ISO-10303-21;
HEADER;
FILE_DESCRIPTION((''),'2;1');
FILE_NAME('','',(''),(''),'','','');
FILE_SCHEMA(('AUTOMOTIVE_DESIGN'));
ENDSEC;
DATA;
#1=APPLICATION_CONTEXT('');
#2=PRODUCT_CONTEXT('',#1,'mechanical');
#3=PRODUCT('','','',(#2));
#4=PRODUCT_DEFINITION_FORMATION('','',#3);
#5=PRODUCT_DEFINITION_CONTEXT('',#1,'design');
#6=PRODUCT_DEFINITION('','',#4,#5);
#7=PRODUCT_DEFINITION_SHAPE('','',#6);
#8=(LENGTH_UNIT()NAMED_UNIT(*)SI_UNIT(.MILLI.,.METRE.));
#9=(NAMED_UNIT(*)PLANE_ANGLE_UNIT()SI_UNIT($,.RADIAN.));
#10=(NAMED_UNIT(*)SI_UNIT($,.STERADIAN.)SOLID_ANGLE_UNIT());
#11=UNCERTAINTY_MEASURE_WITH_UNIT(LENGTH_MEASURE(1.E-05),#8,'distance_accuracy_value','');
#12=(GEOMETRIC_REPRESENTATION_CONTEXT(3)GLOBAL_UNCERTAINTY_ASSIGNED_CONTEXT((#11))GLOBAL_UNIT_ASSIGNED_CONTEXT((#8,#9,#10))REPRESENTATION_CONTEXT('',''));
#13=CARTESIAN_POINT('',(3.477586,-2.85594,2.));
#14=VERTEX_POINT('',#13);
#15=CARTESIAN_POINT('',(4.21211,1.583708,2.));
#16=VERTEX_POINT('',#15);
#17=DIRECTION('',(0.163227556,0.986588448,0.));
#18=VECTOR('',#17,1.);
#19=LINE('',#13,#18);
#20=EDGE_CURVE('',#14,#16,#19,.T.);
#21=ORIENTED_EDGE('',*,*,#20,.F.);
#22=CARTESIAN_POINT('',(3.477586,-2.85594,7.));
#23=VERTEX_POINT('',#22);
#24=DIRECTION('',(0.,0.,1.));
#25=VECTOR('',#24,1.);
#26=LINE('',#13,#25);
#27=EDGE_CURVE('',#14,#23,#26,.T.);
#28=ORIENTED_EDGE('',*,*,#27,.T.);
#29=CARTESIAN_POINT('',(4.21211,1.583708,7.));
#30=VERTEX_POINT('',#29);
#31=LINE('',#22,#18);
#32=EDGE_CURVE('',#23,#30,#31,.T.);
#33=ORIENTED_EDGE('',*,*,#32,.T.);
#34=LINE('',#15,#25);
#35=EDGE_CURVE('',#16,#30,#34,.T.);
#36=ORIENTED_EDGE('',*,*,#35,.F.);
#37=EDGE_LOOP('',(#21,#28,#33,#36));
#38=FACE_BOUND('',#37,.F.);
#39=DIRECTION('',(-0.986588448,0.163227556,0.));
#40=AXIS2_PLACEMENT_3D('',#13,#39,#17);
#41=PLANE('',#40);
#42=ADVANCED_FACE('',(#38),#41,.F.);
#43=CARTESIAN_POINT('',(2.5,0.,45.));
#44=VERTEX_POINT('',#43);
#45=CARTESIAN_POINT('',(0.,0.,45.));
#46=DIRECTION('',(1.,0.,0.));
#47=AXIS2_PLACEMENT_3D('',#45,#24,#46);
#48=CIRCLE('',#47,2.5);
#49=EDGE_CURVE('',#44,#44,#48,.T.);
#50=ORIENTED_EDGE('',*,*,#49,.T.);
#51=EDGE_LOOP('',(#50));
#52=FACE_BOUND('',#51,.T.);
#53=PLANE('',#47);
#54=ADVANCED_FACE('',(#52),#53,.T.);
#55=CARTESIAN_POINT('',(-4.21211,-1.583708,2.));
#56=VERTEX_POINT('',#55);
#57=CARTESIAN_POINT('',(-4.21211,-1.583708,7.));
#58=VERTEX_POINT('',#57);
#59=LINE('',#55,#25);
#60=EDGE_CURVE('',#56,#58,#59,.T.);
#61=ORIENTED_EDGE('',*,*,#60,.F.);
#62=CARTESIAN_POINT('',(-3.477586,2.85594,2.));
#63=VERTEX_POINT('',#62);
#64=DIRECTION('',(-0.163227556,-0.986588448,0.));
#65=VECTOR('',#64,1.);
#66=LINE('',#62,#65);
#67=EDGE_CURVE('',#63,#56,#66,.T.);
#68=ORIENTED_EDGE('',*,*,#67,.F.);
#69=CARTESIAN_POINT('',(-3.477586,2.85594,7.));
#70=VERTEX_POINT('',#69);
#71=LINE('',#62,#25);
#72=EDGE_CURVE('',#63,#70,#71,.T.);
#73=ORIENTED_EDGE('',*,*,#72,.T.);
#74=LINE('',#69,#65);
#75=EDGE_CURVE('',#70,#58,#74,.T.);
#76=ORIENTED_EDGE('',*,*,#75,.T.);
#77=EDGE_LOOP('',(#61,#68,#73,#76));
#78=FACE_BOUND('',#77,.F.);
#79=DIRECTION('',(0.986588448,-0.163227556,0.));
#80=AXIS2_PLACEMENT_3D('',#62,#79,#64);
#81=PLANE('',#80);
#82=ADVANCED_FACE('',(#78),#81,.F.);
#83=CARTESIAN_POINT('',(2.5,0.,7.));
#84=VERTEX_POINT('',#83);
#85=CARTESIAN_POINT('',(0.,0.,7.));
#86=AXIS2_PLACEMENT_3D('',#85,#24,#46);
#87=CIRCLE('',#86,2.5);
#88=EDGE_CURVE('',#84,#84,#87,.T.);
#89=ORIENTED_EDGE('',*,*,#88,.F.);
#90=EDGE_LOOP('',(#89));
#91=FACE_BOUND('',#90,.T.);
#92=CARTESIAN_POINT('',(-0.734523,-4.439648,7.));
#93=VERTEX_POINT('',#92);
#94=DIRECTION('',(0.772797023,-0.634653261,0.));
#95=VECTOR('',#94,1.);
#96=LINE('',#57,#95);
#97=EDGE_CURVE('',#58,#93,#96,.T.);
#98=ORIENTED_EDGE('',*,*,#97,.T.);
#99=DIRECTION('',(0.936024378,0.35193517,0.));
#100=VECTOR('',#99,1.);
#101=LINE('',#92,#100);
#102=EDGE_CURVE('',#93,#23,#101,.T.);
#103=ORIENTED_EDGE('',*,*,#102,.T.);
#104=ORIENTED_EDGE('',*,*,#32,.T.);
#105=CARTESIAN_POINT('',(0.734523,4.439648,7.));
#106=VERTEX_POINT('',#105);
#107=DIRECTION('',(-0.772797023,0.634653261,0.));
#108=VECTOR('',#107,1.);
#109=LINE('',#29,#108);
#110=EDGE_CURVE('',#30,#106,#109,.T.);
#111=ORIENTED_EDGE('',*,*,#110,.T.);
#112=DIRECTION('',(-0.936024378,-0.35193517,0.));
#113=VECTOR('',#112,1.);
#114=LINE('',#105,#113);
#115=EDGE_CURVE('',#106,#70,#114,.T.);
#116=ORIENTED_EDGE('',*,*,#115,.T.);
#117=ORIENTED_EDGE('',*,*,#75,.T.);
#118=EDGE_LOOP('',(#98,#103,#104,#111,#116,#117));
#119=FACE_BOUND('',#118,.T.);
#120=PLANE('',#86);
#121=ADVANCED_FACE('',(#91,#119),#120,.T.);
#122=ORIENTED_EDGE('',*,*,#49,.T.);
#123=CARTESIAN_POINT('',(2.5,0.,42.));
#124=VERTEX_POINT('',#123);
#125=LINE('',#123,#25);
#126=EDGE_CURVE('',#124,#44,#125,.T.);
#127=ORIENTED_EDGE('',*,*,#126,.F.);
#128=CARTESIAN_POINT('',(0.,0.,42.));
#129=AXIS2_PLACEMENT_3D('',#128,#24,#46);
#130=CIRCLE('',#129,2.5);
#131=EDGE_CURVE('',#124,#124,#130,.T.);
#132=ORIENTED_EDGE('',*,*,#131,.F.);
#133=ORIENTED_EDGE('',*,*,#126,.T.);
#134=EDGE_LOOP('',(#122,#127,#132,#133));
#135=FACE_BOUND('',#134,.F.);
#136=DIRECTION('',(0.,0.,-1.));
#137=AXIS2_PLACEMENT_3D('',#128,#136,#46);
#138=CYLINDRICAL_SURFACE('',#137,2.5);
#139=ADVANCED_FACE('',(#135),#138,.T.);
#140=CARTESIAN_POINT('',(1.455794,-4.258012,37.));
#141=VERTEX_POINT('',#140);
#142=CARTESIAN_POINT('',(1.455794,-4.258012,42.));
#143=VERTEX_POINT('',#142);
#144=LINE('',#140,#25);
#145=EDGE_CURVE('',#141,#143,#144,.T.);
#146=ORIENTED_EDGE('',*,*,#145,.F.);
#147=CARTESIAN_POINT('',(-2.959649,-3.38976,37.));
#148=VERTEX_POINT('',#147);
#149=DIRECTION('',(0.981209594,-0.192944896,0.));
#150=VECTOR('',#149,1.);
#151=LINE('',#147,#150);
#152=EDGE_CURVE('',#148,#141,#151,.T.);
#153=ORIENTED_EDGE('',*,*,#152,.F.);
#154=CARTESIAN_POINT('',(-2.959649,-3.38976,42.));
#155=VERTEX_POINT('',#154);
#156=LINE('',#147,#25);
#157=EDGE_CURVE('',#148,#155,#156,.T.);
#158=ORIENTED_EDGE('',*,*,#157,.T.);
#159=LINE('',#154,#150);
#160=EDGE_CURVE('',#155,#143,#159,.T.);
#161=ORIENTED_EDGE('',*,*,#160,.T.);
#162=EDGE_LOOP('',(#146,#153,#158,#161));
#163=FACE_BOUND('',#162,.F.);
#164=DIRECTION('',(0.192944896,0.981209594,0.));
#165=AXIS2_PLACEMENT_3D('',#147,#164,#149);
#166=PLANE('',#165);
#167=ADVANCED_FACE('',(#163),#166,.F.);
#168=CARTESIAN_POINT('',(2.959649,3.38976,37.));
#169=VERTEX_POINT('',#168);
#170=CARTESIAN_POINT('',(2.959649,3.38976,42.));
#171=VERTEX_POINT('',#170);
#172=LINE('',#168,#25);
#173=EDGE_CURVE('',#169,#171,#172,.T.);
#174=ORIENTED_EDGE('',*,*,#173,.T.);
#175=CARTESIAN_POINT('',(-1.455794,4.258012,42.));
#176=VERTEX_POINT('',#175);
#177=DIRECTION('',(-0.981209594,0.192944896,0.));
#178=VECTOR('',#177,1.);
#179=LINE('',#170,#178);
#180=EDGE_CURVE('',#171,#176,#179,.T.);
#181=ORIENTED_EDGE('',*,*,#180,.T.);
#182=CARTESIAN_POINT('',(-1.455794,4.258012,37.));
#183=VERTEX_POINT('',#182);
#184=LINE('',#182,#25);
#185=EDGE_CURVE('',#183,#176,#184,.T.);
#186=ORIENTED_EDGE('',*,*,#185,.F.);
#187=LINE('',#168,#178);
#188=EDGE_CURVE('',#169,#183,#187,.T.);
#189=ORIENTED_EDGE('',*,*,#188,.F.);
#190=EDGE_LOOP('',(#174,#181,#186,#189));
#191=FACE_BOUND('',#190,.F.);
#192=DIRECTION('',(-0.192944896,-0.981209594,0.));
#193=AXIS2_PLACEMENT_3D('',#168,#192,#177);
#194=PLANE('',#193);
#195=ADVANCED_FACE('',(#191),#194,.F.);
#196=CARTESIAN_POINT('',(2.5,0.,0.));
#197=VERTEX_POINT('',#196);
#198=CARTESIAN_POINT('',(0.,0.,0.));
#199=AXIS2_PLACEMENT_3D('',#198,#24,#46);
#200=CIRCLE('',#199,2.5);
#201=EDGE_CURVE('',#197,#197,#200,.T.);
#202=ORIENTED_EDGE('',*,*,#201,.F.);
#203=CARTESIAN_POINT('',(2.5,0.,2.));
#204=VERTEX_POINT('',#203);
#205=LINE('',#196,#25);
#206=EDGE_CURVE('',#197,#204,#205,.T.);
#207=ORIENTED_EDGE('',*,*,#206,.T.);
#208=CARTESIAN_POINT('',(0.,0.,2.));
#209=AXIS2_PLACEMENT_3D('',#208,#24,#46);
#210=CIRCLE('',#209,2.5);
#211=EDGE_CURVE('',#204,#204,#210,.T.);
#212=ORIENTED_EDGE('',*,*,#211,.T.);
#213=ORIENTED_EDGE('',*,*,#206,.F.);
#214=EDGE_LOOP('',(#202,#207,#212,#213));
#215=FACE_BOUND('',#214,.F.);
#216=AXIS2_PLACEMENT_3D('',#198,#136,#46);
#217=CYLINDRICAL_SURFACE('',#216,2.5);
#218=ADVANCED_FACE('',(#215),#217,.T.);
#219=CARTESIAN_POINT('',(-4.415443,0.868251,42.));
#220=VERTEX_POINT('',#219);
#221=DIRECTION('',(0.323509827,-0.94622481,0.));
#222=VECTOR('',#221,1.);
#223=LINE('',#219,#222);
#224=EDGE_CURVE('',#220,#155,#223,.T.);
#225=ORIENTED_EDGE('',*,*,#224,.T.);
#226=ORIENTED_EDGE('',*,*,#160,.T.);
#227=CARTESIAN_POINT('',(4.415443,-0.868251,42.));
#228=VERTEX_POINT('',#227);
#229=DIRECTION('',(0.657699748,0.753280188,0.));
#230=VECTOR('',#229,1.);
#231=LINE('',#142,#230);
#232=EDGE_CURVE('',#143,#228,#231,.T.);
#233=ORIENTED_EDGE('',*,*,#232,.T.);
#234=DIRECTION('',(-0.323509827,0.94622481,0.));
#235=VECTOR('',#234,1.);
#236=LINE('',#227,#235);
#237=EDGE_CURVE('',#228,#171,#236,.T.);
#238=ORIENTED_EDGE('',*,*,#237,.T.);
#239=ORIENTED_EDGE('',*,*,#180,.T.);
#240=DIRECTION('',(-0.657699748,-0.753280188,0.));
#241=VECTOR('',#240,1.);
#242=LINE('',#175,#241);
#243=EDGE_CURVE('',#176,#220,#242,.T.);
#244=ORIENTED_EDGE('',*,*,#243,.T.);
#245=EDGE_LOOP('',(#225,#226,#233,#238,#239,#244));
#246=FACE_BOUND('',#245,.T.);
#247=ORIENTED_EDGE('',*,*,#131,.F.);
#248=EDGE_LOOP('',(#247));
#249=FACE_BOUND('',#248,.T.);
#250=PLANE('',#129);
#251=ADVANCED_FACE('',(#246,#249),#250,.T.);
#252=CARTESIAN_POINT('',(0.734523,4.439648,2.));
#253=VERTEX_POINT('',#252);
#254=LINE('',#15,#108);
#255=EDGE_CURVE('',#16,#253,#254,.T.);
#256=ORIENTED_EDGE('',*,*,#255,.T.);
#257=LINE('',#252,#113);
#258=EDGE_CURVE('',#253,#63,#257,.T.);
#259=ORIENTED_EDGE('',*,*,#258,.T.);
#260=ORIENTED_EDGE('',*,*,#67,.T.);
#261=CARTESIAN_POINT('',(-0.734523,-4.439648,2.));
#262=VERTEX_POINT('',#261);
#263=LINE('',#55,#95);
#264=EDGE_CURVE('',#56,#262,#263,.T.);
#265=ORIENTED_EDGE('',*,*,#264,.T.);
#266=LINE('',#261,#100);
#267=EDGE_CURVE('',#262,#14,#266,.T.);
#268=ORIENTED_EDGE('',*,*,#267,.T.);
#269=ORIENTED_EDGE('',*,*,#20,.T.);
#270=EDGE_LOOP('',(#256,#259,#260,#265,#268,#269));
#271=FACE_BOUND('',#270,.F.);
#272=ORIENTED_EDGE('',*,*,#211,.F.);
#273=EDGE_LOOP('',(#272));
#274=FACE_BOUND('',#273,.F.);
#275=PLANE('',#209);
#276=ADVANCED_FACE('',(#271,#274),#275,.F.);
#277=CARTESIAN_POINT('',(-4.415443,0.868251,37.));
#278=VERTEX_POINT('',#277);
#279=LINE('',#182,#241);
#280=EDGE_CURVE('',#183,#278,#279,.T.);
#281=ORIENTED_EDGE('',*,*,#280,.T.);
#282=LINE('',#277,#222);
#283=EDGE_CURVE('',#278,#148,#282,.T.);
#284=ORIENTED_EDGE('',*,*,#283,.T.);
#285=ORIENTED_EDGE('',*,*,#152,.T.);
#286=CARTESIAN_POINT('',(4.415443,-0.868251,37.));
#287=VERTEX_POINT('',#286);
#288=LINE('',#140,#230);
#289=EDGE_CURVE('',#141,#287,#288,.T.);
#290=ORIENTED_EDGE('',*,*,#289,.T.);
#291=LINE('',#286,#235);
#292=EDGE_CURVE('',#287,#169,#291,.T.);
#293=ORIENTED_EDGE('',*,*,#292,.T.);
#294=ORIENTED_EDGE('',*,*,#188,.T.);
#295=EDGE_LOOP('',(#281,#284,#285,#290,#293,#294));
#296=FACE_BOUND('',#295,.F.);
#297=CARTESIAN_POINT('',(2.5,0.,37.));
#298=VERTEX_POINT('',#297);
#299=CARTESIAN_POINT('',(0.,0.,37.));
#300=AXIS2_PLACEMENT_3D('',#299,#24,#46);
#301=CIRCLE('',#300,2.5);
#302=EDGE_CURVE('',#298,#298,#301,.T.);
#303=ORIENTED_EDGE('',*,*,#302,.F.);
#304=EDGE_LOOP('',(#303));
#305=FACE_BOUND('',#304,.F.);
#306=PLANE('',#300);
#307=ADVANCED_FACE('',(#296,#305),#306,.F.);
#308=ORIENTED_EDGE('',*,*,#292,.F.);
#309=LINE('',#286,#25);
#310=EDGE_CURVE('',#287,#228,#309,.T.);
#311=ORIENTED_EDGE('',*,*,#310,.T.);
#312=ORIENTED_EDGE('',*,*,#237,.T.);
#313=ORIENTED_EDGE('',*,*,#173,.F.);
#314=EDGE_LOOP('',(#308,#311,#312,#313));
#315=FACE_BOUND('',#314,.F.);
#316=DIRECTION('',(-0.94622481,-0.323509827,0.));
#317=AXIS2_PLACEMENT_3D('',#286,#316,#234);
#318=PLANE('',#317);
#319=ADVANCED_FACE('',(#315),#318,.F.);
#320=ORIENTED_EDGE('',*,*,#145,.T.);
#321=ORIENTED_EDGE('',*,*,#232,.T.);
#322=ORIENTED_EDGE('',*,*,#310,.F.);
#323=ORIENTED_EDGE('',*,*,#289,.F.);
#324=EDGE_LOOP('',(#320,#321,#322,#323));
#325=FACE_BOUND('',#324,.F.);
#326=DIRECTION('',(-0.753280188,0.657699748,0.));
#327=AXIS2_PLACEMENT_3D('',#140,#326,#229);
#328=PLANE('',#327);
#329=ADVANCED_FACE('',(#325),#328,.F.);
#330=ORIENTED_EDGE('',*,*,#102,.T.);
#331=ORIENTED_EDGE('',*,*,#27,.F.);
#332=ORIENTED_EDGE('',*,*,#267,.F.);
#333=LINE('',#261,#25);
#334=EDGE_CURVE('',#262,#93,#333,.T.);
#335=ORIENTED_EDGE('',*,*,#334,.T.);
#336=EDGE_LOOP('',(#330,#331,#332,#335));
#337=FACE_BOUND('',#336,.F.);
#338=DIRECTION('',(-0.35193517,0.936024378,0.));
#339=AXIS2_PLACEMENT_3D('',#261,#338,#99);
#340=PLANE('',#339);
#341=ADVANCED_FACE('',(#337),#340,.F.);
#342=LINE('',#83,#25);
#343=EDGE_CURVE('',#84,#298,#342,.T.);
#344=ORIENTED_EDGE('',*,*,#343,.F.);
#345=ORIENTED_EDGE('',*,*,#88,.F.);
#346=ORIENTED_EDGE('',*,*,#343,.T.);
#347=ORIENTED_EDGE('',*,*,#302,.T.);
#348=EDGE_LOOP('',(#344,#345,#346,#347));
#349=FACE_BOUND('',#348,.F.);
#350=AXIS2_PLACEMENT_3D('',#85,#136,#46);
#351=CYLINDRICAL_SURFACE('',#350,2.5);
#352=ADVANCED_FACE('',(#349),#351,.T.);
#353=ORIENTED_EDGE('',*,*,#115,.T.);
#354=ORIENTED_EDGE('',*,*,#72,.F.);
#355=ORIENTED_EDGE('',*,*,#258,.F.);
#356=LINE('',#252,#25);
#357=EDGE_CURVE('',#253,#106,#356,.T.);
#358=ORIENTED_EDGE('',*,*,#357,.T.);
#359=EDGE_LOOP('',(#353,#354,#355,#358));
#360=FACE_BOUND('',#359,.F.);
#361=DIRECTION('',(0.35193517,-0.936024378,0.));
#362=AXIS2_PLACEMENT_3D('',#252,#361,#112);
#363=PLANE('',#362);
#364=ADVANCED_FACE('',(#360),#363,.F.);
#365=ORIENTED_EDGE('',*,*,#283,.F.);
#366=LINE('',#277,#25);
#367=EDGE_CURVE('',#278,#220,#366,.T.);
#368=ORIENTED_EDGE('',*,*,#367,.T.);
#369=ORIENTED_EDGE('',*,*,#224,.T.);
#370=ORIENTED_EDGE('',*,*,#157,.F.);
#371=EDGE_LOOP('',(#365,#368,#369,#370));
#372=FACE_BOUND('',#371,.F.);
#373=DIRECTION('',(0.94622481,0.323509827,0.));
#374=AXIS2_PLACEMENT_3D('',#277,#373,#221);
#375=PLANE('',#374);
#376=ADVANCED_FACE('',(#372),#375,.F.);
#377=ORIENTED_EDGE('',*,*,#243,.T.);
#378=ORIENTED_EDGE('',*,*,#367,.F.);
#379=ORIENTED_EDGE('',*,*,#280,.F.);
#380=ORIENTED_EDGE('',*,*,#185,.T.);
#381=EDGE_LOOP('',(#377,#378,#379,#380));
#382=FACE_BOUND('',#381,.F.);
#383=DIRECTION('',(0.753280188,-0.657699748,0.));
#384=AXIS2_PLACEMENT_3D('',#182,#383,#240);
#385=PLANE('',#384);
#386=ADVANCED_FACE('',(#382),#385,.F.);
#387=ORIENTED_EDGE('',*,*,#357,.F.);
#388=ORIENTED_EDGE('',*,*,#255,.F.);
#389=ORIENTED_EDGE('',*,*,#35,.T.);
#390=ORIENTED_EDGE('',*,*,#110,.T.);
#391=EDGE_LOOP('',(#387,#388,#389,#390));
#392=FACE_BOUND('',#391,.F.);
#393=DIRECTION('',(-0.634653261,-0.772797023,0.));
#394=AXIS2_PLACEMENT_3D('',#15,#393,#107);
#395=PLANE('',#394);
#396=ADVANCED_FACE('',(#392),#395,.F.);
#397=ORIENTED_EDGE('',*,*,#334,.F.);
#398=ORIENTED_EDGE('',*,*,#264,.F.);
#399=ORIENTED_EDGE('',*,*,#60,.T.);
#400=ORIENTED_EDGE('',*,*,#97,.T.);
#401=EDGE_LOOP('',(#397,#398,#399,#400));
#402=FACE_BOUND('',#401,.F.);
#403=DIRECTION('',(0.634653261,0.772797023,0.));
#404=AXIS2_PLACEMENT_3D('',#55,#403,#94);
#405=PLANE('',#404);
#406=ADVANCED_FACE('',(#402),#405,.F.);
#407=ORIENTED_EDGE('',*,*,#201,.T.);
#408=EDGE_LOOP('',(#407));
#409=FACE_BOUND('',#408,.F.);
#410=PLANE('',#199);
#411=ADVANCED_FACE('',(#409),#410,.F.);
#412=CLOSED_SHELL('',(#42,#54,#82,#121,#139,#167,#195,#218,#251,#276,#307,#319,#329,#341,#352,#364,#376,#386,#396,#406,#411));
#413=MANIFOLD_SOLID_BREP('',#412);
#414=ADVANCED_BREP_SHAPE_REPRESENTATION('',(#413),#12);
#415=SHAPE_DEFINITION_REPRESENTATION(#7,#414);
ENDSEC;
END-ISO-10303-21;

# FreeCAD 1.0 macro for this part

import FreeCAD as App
import Part
import Sketcher

V = App.Vector
Q = App.Units.Quantity


def add_polygon(sketch, points):
    """Adds a closed chain of lines whose ends are joined by coincident constraints."""
    first, n = sketch.GeometryCount, len(points)
    for a, b in zip(points, points[1:] + points[:1]):
        sketch.addGeometry(Part.LineSegment(App.Vector(*a, 0), App.Vector(*b, 0)), False)
    for i in range(n):
        sketch.addConstraint(Sketcher.Constraint("Coincident", first + i, 2, first + (i + 1) % n, 1))

doc = App.newDocument("Part")
params = doc.addObject("Spreadsheet::Sheet", "Params")
for row, (alias, value) in enumerate([
    ("sketch1_diameter", "5 mm"),
    ("pad1_length", "2 mm"),
    ("sketch2_length", "4.499999 mm"),
    ("pad2_length", "5 mm"),
    ("sketch3_diameter", "5 mm"),
    ("pad3_length", "30 mm"),
    ("sketch4_length", "4.5 mm"),
    ("pad4_length", "5 mm"),
    ("sketch5_diameter", "5 mm"),
    ("pad5_length", "3 mm"),
], start=1):
    params.set(f"A{row}", alias)
    params.set(f"B{row}", "=" + value)
    params.setAlias(f"B{row}", alias)

body = doc.addObject("PartDesign::Body", "Body")

# Sketch on XY plane
sketch1 = body.newObject("Sketcher::SketchObject", "Sketch")
sketch1.AttachmentSupport = (doc.getObject("XY_Plane"), [""])
sketch1.MapMode = "FlatFace"
sketch1.addGeometry(Part.Circle(V(0, 0, 0), V(0, 0, 1), 2.5), False)
sketch1.addConstraint(Sketcher.Constraint("Coincident", 0, 3, -1, 1))
sketch1.addConstraint(Sketcher.Constraint("Diameter", 0, Q("5 mm")))
sketch1.setExpression("Constraints[1]", "Params.sketch1_diameter")
pad1 = body.newObject("PartDesign::Pad", "Pad")
pad1.Profile = sketch1
pad1.setExpression("Length", "Params.pad1_length")

# Sketch on XY plane
sketch2 = body.newObject("Sketcher::SketchObject", "Sketch001")
sketch2.AttachmentSupport = (doc.getObject("XY_Plane"), [""])
sketch2.MapMode = "FlatFace"
sketch2.AttachmentOffset = App.Placement(V(0, 0, 2), App.Rotation())
add_polygon(sketch2, [(0.734523, 4.439648), (-3.477586, 2.85594), (-4.21211, -1.583708), (-0.734523, -4.439648), (3.477586, -2.85594), (4.21211, 1.583708)])  # lines 0-5
sketch2.addConstraint(Sketcher.Constraint("Symmetric", 0, 2, 3, 2, -1, 1))
sketch2.addConstraint(Sketcher.Constraint("Symmetric", 1, 2, 4, 2, -1, 1))
sketch2.addConstraint(Sketcher.Constraint("Symmetric", 2, 2, 5, 2, -1, 1))
sketch2.addConstraint(Sketcher.Constraint("Equal", 0, 1))
sketch2.addConstraint(Sketcher.Constraint("Equal", 1, 2))
sketch2.addConstraint(Sketcher.Constraint("Distance", 0, Q("4.499999 mm")))
sketch2.addConstraint(Sketcher.Constraint("DistanceY", -1, 1, 0, 2, Q("2.85594 mm")))
sketch2.addConstraint(Sketcher.Constraint("DistanceX", 1, 2, -1, 1, Q("4.21211 mm")))
sketch2.addConstraint(Sketcher.Constraint("DistanceY", 2, 2, 1, 2, Q("2.85594 mm")))
sketch2.setExpression("Constraints[11]", "Params.sketch2_length")
pad2 = body.newObject("PartDesign::Pad", "Pad001")
pad2.Profile = sketch2
pad2.setExpression("Length", "Params.pad2_length")

# Sketch on XY plane
sketch3 = body.newObject("Sketcher::SketchObject", "Sketch002")
sketch3.AttachmentSupport = (doc.getObject("XY_Plane"), [""])
sketch3.MapMode = "FlatFace"
sketch3.AttachmentOffset = App.Placement(V(0, 0, 7), App.Rotation())
sketch3.addGeometry(Part.Circle(V(0, 0, 0), V(0, 0, 1), 2.5), False)
sketch3.addConstraint(Sketcher.Constraint("Coincident", 0, 3, -1, 1))
sketch3.addConstraint(Sketcher.Constraint("Diameter", 0, Q("5 mm")))
sketch3.setExpression("Constraints[1]", "Params.sketch3_diameter")
pad3 = body.newObject("PartDesign::Pad", "Pad002")
pad3.Profile = sketch3
pad3.setExpression("Length", "Params.pad3_length")

# Sketch on XY plane
sketch4 = body.newObject("Sketcher::SketchObject", "Sketch003")
sketch4.AttachmentSupport = (doc.getObject("XY_Plane"), [""])
sketch4.MapMode = "FlatFace"
sketch4.AttachmentOffset = App.Placement(V(0, 0, 37), App.Rotation())
add_polygon(sketch4, [(-1.455794, 4.258012), (-4.415443, 0.868251), (-2.959649, -3.38976), (1.455794, -4.258012), (4.415443, -0.868251), (2.959649, 3.38976)])  # lines 0-5
sketch4.addConstraint(Sketcher.Constraint("Symmetric", 0, 2, 3, 2, -1, 1))
sketch4.addConstraint(Sketcher.Constraint("Symmetric", 1, 2, 4, 2, -1, 1))
sketch4.addConstraint(Sketcher.Constraint("Symmetric", 2, 2, 5, 2, -1, 1))
sketch4.addConstraint(Sketcher.Constraint("Equal", 0, 1))
sketch4.addConstraint(Sketcher.Constraint("Equal", 1, 2))
sketch4.addConstraint(Sketcher.Constraint("Distance", 0, Q("4.5 mm")))
sketch4.addConstraint(Sketcher.Constraint("DistanceX", 1, 2, 4, 2, Q("5.919298 mm")))
sketch4.addConstraint(Sketcher.Constraint("DistanceY", -1, 1, 0, 2, Q("0.868251 mm")))
sketch4.addConstraint(Sketcher.Constraint("DistanceY", 1, 2, -1, 1, Q("3.38976 mm")))
sketch4.setExpression("Constraints[11]", "Params.sketch4_length")
pad4 = body.newObject("PartDesign::Pad", "Pad003")
pad4.Profile = sketch4
pad4.setExpression("Length", "Params.pad4_length")

# Sketch on XY plane
sketch5 = body.newObject("Sketcher::SketchObject", "Sketch004")
sketch5.AttachmentSupport = (doc.getObject("XY_Plane"), [""])
sketch5.MapMode = "FlatFace"
sketch5.AttachmentOffset = App.Placement(V(0, 0, 42), App.Rotation())
sketch5.addGeometry(Part.Circle(V(0, 0, 0), V(0, 0, 1), 2.5), False)
sketch5.addConstraint(Sketcher.Constraint("Coincident", 0, 3, -1, 1))
sketch5.addConstraint(Sketcher.Constraint("Diameter", 0, Q("5 mm")))
sketch5.setExpression("Constraints[1]", "Params.sketch5_diameter")
pad5 = body.newObject("PartDesign::Pad", "Pad004")
pad5.Profile = sketch5
pad5.setExpression("Length", "Params.pad5_length")

doc.recompute()
